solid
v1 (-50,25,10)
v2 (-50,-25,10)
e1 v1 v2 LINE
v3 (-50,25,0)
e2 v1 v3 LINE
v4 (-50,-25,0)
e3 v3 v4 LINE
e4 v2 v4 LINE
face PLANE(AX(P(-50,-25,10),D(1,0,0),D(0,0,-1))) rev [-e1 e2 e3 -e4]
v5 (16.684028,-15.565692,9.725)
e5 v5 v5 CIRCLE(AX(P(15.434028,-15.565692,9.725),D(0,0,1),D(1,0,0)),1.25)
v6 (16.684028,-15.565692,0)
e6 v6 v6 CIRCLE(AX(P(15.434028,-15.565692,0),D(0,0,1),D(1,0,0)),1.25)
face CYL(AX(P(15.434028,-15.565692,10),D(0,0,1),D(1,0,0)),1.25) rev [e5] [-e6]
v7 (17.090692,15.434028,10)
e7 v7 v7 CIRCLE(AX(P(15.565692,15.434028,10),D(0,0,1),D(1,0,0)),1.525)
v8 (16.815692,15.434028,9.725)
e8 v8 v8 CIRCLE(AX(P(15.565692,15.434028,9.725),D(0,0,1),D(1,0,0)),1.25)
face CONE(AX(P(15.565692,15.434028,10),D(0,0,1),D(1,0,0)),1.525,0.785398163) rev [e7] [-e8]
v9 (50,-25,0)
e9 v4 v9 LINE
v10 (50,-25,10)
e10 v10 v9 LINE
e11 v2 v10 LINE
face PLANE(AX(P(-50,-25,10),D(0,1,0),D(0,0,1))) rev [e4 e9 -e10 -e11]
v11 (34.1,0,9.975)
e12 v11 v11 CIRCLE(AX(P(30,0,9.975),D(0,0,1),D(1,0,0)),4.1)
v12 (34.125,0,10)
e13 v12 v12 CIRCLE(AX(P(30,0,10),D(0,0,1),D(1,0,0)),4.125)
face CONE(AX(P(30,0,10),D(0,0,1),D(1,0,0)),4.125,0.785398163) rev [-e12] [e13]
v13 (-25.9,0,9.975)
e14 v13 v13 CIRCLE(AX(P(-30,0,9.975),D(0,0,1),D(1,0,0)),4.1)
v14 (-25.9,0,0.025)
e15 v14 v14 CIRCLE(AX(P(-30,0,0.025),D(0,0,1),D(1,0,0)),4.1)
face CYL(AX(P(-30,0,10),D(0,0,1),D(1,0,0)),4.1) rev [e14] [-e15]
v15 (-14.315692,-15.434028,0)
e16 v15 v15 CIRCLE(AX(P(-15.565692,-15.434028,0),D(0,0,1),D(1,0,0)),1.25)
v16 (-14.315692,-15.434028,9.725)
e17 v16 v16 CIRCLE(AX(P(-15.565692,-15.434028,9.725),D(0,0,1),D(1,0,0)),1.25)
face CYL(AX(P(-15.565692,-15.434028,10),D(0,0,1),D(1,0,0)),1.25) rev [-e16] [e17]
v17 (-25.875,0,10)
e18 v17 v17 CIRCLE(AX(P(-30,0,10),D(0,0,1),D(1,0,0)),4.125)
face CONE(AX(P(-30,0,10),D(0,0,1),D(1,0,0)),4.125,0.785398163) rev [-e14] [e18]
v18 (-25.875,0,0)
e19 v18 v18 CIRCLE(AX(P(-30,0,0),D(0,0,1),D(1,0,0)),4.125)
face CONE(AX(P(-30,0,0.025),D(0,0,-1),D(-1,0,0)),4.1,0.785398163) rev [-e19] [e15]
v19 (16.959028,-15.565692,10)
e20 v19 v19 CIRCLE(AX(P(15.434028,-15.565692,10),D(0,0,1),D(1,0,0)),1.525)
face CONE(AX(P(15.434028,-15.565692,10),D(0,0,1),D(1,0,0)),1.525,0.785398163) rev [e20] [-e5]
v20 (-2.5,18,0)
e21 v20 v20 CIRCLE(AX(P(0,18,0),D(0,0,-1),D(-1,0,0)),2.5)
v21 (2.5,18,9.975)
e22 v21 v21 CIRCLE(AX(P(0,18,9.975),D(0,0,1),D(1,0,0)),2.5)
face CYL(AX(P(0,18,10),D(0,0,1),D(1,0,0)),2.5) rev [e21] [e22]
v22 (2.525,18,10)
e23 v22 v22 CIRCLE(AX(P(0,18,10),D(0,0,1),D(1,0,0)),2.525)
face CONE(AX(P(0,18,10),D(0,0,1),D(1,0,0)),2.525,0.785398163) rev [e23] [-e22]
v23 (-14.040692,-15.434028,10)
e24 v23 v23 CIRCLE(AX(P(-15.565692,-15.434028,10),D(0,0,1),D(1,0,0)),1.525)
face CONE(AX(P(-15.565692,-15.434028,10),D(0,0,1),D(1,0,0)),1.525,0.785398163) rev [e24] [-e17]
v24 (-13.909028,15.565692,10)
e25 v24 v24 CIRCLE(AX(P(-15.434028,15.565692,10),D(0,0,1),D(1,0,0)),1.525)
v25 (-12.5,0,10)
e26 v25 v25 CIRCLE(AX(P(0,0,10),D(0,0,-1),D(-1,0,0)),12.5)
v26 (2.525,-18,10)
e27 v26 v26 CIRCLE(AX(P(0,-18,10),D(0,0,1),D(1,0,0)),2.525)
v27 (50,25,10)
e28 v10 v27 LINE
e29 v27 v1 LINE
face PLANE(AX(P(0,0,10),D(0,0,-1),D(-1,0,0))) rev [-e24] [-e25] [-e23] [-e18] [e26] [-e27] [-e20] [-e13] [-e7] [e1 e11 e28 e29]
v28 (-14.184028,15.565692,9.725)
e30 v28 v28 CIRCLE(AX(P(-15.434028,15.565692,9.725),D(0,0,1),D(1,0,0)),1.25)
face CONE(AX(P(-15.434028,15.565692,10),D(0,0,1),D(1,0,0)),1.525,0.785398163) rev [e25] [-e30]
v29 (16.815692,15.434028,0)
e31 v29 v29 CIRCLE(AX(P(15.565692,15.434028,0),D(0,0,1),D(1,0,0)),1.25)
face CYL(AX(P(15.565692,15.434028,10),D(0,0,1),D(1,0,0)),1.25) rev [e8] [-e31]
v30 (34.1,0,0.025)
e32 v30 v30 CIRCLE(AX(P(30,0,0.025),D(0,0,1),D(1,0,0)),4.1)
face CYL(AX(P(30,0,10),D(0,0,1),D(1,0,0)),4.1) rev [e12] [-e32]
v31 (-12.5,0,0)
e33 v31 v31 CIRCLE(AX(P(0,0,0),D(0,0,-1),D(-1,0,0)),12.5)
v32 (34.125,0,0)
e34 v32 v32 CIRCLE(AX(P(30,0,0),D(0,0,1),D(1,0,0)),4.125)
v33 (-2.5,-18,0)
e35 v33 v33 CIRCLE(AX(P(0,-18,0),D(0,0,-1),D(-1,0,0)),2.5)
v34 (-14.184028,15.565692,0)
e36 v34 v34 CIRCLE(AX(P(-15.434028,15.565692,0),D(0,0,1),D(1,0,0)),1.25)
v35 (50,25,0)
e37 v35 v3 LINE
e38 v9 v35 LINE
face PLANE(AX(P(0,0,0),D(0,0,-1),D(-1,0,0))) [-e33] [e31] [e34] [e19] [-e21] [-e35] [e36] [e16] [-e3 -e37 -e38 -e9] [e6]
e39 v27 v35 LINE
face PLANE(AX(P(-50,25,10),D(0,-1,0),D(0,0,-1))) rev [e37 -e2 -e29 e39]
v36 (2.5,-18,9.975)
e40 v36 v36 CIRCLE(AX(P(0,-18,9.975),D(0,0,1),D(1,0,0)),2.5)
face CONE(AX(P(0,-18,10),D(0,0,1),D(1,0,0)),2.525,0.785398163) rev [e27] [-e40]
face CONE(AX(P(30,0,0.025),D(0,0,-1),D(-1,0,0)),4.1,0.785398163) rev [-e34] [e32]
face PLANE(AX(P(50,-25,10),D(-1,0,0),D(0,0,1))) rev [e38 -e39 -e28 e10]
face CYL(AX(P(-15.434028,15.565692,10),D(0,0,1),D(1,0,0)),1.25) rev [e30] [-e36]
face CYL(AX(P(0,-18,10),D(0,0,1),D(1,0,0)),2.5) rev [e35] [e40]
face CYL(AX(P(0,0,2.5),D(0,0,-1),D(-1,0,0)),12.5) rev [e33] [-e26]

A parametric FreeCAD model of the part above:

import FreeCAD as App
import Part
import Sketcher


def add_polygon(sketch, points):
    """Adds a closed chain of lines whose ends are joined by coincident constraints."""
    first, n = sketch.GeometryCount, len(points)
    for a, b in zip(points, points[1:] + points[:1]):
        sketch.addGeometry(Part.LineSegment(App.Vector(*a, 0), App.Vector(*b, 0)), False)
    for i in range(n):
        sketch.addConstraint(Sketcher.Constraint("Coincident", first + i, 2, first + (i + 1) % n, 1))

doc = App.newDocument("Part")
body = doc.addObject("PartDesign::Body", "Body")

sketch1 = body.newObject("Sketcher::SketchObject", "Sketch")
sketch1.AttachmentSupport = (doc.getObject("XY_Plane"), [""])
sketch1.MapMode = "FlatFace"
add_polygon(sketch1, [(-50, 25), (-50, -25), (50, -25), (50, 25)])
sketch1.addConstraint([
    Sketcher.Constraint("Vertical", 0),
    Sketcher.Constraint("Horizontal", 1),
    Sketcher.Constraint("Vertical", 2),
    Sketcher.Constraint("Horizontal", 3),
    Sketcher.Constraint("Symmetric", 0, 2, 2, 2, -1, 1),
    Sketcher.Constraint("DistanceX", 1, 1, 1, 2, 100.0),
    Sketcher.Constraint("DistanceY", 0, 2, 0, 1, 50.0),
])
pad1 = body.newObject("PartDesign::Pad", "Pad")
pad1.Profile = sketch1
pad1.Length = 10

sketch2 = body.newObject("Sketcher::SketchObject", "Sketch001")
sketch2.AttachmentSupport = (doc.getObject("XY_Plane"), [""])
sketch2.MapMode = "FlatFace"
sketch2.AttachmentOffset = App.Placement(App.Vector(0, 0, 10), App.Rotation())
sketch2.addGeometry([
    Part.Circle(App.Vector(0, 18, 0), App.Vector(0, 0, 1), 2.5),
    Part.Circle(App.Vector(0, -18, 0), App.Vector(0, 0, 1), 2.5),
], False)
sketch2.addConstraint([
    Sketcher.Constraint("Equal", 0, 1),
    Sketcher.Constraint("Symmetric", 0, 3, 1, 3, -1, 1),
    Sketcher.Constraint("PointOnObject", 0, 3, -2),
    Sketcher.Constraint("Diameter", 0, 5.0),
    Sketcher.Constraint("DistanceY", -1, 1, 0, 3, 18.0),
])
doc.recompute()
hole = body.newObject("PartDesign::Hole", "Hole")
hole.Profile = sketch2
hole.ThreadType = "None"
hole.Diameter = 5
hole.DepthType = "ThroughAll"
hole.HoleCutType = "Countersink"
hole.HoleCutDiameter = 5.05
hole.HoleCutCountersinkAngle = 90

sketch3 = body.newObject("Sketcher::SketchObject", "Sketch002")
sketch3.AttachmentSupport = (doc.getObject("XY_Plane"), [""])
sketch3.MapMode = "FlatFace"
sketch3.AttachmentOffset = App.Placement(App.Vector(0, 0, 10), App.Rotation())
sketch3.addGeometry(Part.Circle(App.Vector(0, 0, 0), App.Vector(0, 0, 1), 5), False)
sketch3.addConstraint([
    Sketcher.Constraint("Coincident", 0, 3, -1, 1),
    Sketcher.Constraint("Diameter", 0, 10.0),
])
pocket1 = body.newObject("PartDesign::Pocket", "Pocket")
pocket1.Profile = sketch3
pocket1.Type = "ThroughAll"

sketch4 = body.newObject("Sketcher::SketchObject", "Sketch003")
sketch4.AttachmentSupport = (doc.getObject("YZ_Plane"), [""])
sketch4.MapMode = "FlatFace"
sketch4.AttachmentOffset = App.Placement(App.Vector(0, 0, 30), App.Rotation())
add_polygon(sketch4, [(0, 0), (0, 10), (-4.125, 10), (-4.1, 9.975), (-4.1, 0.025), (-4.125, 0)])
sketch4.addConstraint([
    Sketcher.Constraint("Vertical", 0),
    Sketcher.Constraint("Horizontal", 1),
    Sketcher.Constraint("Vertical", 3),
    Sketcher.Constraint("Horizontal", 5),
    Sketcher.Constraint("Coincident", 5, 2, -1, 1),
    Sketcher.Constraint("Perpendicular", 2, 4),
    Sketcher.Constraint("Vertical", 1, 2, 4, 2),
    Sketcher.Constraint("Equal", 2, 4),
    Sketcher.Constraint("DistanceY", 0, 1, 0, 2, 10.0),
    Sketcher.Constraint("DistanceY", 3, 2, 3, 1, 9.95),
    Sketcher.Constraint("DistanceX", 2, 2, -1, 1, 4.1),
])
groove = body.newObject("PartDesign::Groove", "Groove")
groove.Profile = sketch4
groove.ReferenceAxis = (sketch4, ["V_Axis"])
groove.Angle = 360
doc.recompute()

mirrored = body.newObject("PartDesign::Mirrored", "Mirrored")
mirrored.Originals = [groove]
mirrored.MirrorPlane = (doc.getObject("YZ_Plane"), [""])
body.Tip = mirrored

sketch5 = body.newObject("Sketcher::SketchObject", "Sketch004")
sketch5.AttachmentSupport = (doc.getObject("XY_Plane"), [""])
sketch5.MapMode = "FlatFace"
sketch5.addGeometry(Part.Circle(App.Vector(0, 0, 0), App.Vector(0, 0, 1), 12), False)
sketch5.addConstraint([
    Sketcher.Constraint("Coincident", 0, 3, -1, 1),
    Sketcher.Constraint("Diameter", 0, 25.0),
])
pocket2 = body.newObject("PartDesign::Pocket", "Pocket001")
pocket2.Profile = sketch5
pocket2.Length = 2.5
pocket2.Reversed = True

sketch6 = body.newObject("Sketcher::SketchObject", "Sketch005")
sketch6.AttachmentSupport = (doc.getObject("XY_Plane"), [""])
sketch6.MapMode = "FlatFace"
sketch6.AttachmentOffset = App.Placement(App.Vector(0, 0, 10), App.Rotation())
sketch6.addGeometry([
    Part.Circle(App.Vector(15.6, 15.4, 0), App.Vector(0, 0, 1), 1.2),
    Part.Circle(App.Vector(15.4, -15.6, 0), App.Vector(0, 0, 1), 1.2),
    Part.Circle(App.Vector(-15.6, -15.4, 0), App.Vector(0, 0, 1), 1.2),
    Part.Circle(App.Vector(-15.4, 15.6, 0), App.Vector(0, 0, 1), 1.2),
], False)
sketch6.addConstraint([
    Sketcher.Constraint("Equal", 0, 1),
    Sketcher.Constraint("Equal", 1, 2),
    Sketcher.Constraint("Equal", 2, 3),
    Sketcher.Constraint("Symmetric", 0, 3, 2, 3, -1, 1),
    Sketcher.Constraint("Symmetric", 1, 3, 3, 3, -1, 1),
    Sketcher.Constraint("Diameter", 0, 2.5),
    Sketcher.Constraint("DistanceY", -1, 1, 0, 3, 15.434028),
    Sketcher.Constraint("DistanceX", -1, 1, 1, 3, 15.434028),
    Sketcher.Constraint("DistanceY", 1, 3, 0, 3, 30.99972),
    Sketcher.Constraint("DistanceX", 2, 3, 1, 3, 30.99972),
])
doc.recompute()
hole2 = body.newObject("PartDesign::Hole", "Hole001")
hole2.Profile = sketch6
hole2.ThreadType = "None"
hole2.Diameter = 2.5
hole2.DepthType = "ThroughAll"
hole2.HoleCutType = "Countersink"
hole2.HoleCutDiameter = 3.05
hole2.HoleCutCountersinkAngle = 90

sketch7 = body.newObject("Sketcher::SketchObject", "Sketch006")
sketch7.AttachmentSupport = (doc.getObject("XY_Plane"), [""])
sketch7.MapMode = "FlatFace"
sketch7.AttachmentOffset = App.Placement(App.Vector(0, 0, 2.5), App.Rotation())
sketch7.addGeometry(Part.Circle(App.Vector(0, 0, 0), App.Vector(0, 0, 1), 12), False)
sketch7.addConstraint([
    Sketcher.Constraint("Coincident", 0, 3, -1, 1),
    Sketcher.Constraint("Diameter", 0, 25.0),
])
pocket3 = body.newObject("PartDesign::Pocket", "Pocket002")
pocket3.Profile = sketch7
pocket3.Type = "ThroughAll"
pocket3.Reversed = True

doc.recompute()
